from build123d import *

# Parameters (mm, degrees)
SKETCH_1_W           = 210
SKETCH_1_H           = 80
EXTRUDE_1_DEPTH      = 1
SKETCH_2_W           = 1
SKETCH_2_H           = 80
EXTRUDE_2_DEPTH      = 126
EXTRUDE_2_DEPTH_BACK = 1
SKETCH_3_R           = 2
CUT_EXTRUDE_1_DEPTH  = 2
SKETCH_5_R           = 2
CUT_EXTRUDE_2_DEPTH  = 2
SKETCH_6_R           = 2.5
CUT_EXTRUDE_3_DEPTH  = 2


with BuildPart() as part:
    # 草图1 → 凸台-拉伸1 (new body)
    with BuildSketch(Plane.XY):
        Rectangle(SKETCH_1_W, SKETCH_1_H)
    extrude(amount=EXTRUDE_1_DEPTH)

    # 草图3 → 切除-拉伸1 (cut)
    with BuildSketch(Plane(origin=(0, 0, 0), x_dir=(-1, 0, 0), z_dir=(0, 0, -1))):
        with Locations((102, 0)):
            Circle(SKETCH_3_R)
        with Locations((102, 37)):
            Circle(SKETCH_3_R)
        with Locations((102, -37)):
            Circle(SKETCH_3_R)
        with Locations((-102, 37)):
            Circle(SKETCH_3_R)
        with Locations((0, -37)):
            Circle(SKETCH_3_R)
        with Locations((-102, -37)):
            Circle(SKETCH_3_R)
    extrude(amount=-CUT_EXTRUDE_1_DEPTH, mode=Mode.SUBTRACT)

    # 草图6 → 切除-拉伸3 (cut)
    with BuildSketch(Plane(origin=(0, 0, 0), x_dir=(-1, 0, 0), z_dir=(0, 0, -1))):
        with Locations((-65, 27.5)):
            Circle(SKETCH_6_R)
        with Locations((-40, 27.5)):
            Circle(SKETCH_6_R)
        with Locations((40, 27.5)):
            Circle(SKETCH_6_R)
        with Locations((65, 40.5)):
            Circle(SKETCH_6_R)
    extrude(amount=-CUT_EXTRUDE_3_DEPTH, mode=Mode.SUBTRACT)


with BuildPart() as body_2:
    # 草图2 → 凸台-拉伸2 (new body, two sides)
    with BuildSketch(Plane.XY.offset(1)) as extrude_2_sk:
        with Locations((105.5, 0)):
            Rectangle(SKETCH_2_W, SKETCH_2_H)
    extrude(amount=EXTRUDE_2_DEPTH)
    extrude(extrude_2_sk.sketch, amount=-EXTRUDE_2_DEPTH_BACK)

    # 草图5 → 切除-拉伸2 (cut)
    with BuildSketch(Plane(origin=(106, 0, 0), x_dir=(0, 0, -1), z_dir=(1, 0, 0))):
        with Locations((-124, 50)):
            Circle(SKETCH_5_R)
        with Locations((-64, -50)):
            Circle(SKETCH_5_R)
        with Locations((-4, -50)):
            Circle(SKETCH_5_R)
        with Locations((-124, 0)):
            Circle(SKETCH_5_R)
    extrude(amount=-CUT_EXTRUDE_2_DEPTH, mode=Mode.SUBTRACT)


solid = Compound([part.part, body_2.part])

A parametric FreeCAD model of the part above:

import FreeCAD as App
import Part
import Sketcher
from FreeCAD import Vector


def add_polygon(sketch, points):
    """Adds a closed chain of lines whose ends are joined by coincident constraints."""
    first, n = sketch.GeometryCount, len(points)
    for a, b in zip(points, points[1:] + points[:1]):
        sketch.addGeometry(Part.LineSegment(App.Vector(*a, 0), App.Vector(*b, 0)), False)
    for i in range(n):
        sketch.addConstraint(Sketcher.Constraint("Coincident", first + i, 2, first + (i + 1) % n, 1))

doc = App.newDocument("Part")
params = doc.addObject("Spreadsheet::Sheet", "Params")
for row, (alias, value) in enumerate([
    ("sketch1_width", "210 mm"),
    ("sketch1_height", "80 mm"),
    ("pad1_length", "1 mm"),
    ("sketch2_diameter", "4 mm"),
    ("pocket1_length", "2 mm"),
    ("sketch3_diameter", "5 mm"),
    ("pocket2_length", "2 mm"),
    ("sketch4_width", "1 mm"),
    ("sketch4_height", "80 mm"),
    ("pad2_length", "126 mm"),
    ("pad2_length2", "1 mm"),
    ("sketch5_diameter", "4 mm"),
    ("pocket3_length", "2 mm"),
], start=1):
    params.set(f"A{row}", alias)
    params.set(f"B{row}", "=" + value)
    params.setAlias(f"B{row}", alias)

body = doc.addObject("PartDesign::Body", "Body")

# Sketch on XY plane
sketch1 = body.newObject("Sketcher::SketchObject", "Sketch")
sketch1.AttachmentSupport = (doc.getObject("XY_Plane"), [""])
sketch1.MapMode = "FlatFace"
add_polygon(sketch1, [(-105, 40), (-105, -40), (105, -40), (105, 40)])  # lines 0-3
sketch1.addConstraint([
    Sketcher.Constraint("Vertical", 0),
    Sketcher.Constraint("Horizontal", 1),
    Sketcher.Constraint("Vertical", 2),
    Sketcher.Constraint("Horizontal", 3),
    Sketcher.Constraint("Symmetric", 0, 2, 2, 2, -1, 1),
    Sketcher.Constraint("DistanceX", 1, 1, 1, 2, 210.0),
    Sketcher.Constraint("DistanceY", 0, 2, 0, 1, 80.0),
])
sketch1.setExpression("Constraints[9]", "Params.sketch1_width")
sketch1.setExpression("Constraints[10]", "Params.sketch1_height")
pad1 = body.newObject("PartDesign::Pad", "Pad")
pad1.Profile = sketch1
pad1.setExpression("Length", "Params.pad1_length")

# Sketch on XY plane
sketch2 = body.newObject("Sketcher::SketchObject", "Sketch001")
sketch2.AttachmentSupport = (doc.getObject("XY_Plane"), [""])
sketch2.MapMode = "FlatFace"
sketch2.addGeometry([
    Part.Circle(Vector(-102, 0, 0), Vector(0, 0, 1), 2),  # 0
    Part.Circle(Vector(-102, 37, 0), Vector(0, 0, 1), 2),  # 1
    Part.Circle(Vector(-102, -37, 0), Vector(0, 0, 1), 2),  # 2
    Part.Circle(Vector(102, 37, 0), Vector(0, 0, 1), 2),  # 3
    Part.Circle(Vector(0, -37, 0), Vector(0, 0, 1), 2),  # 4
    Part.Circle(Vector(102, -37, 0), Vector(0, 0, 1), 2),  # 5
], False)
sketch2.addConstraint([
    Sketcher.Constraint("Equal", 0, 1),
    Sketcher.Constraint("Equal", 1, 2),
    Sketcher.Constraint("Equal", 2, 3),
    Sketcher.Constraint("Equal", 3, 4),
    Sketcher.Constraint("Equal", 4, 5),
    Sketcher.Constraint("Symmetric", 2, 3, 3, 3, -1, 1),
    Sketcher.Constraint("Symmetric", 1, 3, 5, 3, -1, 1),
    Sketcher.Constraint("Symmetric", 1, 3, 3, 3, -2),
    Sketcher.Constraint("PointOnObject", 0, 3, -1),
    Sketcher.Constraint("PointOnObject", 4, 3, -2),
    Sketcher.Constraint("Horizontal", 2, 3, 4, 3),
    Sketcher.Constraint("Vertical", 0, 3, 1, 3),
    Sketcher.Constraint("Diameter", 0, 4.0),
    Sketcher.Constraint("DistanceX", 0, 3, -1, 1, 102.0),
    Sketcher.Constraint("DistanceY", -1, 1, 1, 3, 37.0),
])
sketch2.setExpression("Constraints[12]", "Params.sketch2_diameter")
pocket1 = body.newObject("PartDesign::Pocket", "Pocket")
pocket1.Profile = sketch2
pocket1.setExpression("Length", "Params.pocket1_length")
pocket1.Reversed = True

# Sketch on XY plane
sketch3 = body.newObject("Sketcher::SketchObject", "Sketch002")
sketch3.AttachmentSupport = (doc.getObject("XY_Plane"), [""])
sketch3.MapMode = "FlatFace"
sketch3.addGeometry([
    Part.Circle(Vector(65, 27.5, 0), Vector(0, 0, 1), 2.5),
    Part.Circle(Vector(40, 27.5, 0), Vector(0, 0, 1), 2.5),
    Part.Circle(Vector(-40, 27.5, 0), Vector(0, 0, 1), 2.5),
    Part.Circle(Vector(-65, 40.5, 0), Vector(0, 0, 1), 2.5),
], False)
sketch3.addConstraint([
    Sketcher.Constraint("Equal", 0, 1),
    Sketcher.Constraint("Equal", 1, 2),
    Sketcher.Constraint("Equal", 2, 3),
    Sketcher.Constraint("Symmetric", 1, 3, 2, 3, -2),
    Sketcher.Constraint("Horizontal", 0, 3, 1, 3),
    Sketcher.Constraint("Diameter", 0, 5.0),
    Sketcher.Constraint("DistanceX", -1, 1, 0, 3, 65.0),
    Sketcher.Constraint("DistanceX", -1, 1, 1, 3, 40.0),
    Sketcher.Constraint("DistanceX", 3, 3, -1, 1, 65.0),
    Sketcher.Constraint("DistanceY", 2, 3, 3, 3, 13.0),
    Sketcher.Constraint("DistanceY", -1, 1, 0, 3, 27.5),
])
sketch3.setExpression("Constraints[5]", "Params.sketch3_diameter")
pocket2 = body.newObject("PartDesign::Pocket", "Pocket001")
pocket2.Profile = sketch3
pocket2.setExpression("Length", "Params.pocket2_length")
pocket2.Reversed = True
body2 = doc.addObject("PartDesign::Body", "Body001")

# Sketch on XY plane
sketch4 = body2.newObject("Sketcher::SketchObject", "Sketch003")
sketch4.AttachmentSupport = (doc.getObject("XY_Plane001"), [""])
sketch4.MapMode = "FlatFace"
sketch4.AttachmentOffset = App.Placement(Vector(0, 0, 1), App.Rotation())
add_polygon(sketch4, [(105, 40), (105, -40), (106, -40), (106, 40)])  # lines 0-3
sketch4.addConstraint([
    Sketcher.Constraint("Vertical", 0),
    Sketcher.Constraint("Horizontal", 1),
    Sketcher.Constraint("Vertical", 2),
    Sketcher.Constraint("Horizontal", 3),
    Sketcher.Constraint("DistanceX", 1, 1, 1, 2, 1.0),
    Sketcher.Constraint("DistanceY", 0, 2, 0, 1, 80.0),
    Sketcher.Constraint("DistanceX", -1, 1, 0, 2, 105.0),
    Sketcher.Constraint("DistanceY", 0, 2, -1, 1, 40.0),
])
sketch4.setExpression("Constraints[8]", "Params.sketch4_width")
sketch4.setExpression("Constraints[9]", "Params.sketch4_height")
pad2 = body2.newObject("PartDesign::Pad", "Pad001")
pad2.Profile = sketch4
pad2.Type = "TwoLengths"
pad2.setExpression("Length", "Params.pad2_length")
pad2.setExpression("Length2", "Params.pad2_length2")

# Sketch on YZ plane
sketch5 = body2.newObject("Sketcher::SketchObject", "Sketch004")
sketch5.AttachmentSupport = (doc.getObject("YZ_Plane001"), [""])
sketch5.MapMode = "FlatFace"
sketch5.AttachmentOffset = App.Placement(Vector(0, 0, 106), App.Rotation())
sketch5.addGeometry([
    Part.Circle(Vector(50, 124, 0), Vector(0, 0, 1), 2),
    Part.Circle(Vector(-50, 64, 0), Vector(0, 0, 1), 2),
    Part.Circle(Vector(-50, 4, 0), Vector(0, 0, 1), 2),
    Part.Circle(Vector(0, 124, 0), Vector(0, 0, 1), 2),
], False)
sketch5.addConstraint([
    Sketcher.Constraint("Equal", 0, 1),
    Sketcher.Constraint("Equal", 1, 2),
    Sketcher.Constraint("Equal", 2, 3),
    Sketcher.Constraint("PointOnObject", 3, 3, -2),
    Sketcher.Constraint("Horizontal", 0, 3, 3, 3),
    Sketcher.Constraint("Vertical", 1, 3, 2, 3),
    Sketcher.Constraint("Diameter", 0, 4.0),
    Sketcher.Constraint("DistanceX", -1, 1, 0, 3, 50.0),
    Sketcher.Constraint("DistanceY", -1, 1, 0, 3, 124.0),
    Sketcher.Constraint("DistanceX", 1, 3, -1, 1, 50.0),
    Sketcher.Constraint("DistanceY", -1, 1, 1, 3, 64.0),
    Sketcher.Constraint("DistanceY", -1, 1, 2, 3, 4.0),
])
sketch5.setExpression("Constraints[6]", "Params.sketch5_diameter")
pocket3 = body2.newObject("PartDesign::Pocket", "Pocket002")
pocket3.Profile = sketch5
pocket3.setExpression("Length", "Params.pocket3_length")

doc.recompute()
